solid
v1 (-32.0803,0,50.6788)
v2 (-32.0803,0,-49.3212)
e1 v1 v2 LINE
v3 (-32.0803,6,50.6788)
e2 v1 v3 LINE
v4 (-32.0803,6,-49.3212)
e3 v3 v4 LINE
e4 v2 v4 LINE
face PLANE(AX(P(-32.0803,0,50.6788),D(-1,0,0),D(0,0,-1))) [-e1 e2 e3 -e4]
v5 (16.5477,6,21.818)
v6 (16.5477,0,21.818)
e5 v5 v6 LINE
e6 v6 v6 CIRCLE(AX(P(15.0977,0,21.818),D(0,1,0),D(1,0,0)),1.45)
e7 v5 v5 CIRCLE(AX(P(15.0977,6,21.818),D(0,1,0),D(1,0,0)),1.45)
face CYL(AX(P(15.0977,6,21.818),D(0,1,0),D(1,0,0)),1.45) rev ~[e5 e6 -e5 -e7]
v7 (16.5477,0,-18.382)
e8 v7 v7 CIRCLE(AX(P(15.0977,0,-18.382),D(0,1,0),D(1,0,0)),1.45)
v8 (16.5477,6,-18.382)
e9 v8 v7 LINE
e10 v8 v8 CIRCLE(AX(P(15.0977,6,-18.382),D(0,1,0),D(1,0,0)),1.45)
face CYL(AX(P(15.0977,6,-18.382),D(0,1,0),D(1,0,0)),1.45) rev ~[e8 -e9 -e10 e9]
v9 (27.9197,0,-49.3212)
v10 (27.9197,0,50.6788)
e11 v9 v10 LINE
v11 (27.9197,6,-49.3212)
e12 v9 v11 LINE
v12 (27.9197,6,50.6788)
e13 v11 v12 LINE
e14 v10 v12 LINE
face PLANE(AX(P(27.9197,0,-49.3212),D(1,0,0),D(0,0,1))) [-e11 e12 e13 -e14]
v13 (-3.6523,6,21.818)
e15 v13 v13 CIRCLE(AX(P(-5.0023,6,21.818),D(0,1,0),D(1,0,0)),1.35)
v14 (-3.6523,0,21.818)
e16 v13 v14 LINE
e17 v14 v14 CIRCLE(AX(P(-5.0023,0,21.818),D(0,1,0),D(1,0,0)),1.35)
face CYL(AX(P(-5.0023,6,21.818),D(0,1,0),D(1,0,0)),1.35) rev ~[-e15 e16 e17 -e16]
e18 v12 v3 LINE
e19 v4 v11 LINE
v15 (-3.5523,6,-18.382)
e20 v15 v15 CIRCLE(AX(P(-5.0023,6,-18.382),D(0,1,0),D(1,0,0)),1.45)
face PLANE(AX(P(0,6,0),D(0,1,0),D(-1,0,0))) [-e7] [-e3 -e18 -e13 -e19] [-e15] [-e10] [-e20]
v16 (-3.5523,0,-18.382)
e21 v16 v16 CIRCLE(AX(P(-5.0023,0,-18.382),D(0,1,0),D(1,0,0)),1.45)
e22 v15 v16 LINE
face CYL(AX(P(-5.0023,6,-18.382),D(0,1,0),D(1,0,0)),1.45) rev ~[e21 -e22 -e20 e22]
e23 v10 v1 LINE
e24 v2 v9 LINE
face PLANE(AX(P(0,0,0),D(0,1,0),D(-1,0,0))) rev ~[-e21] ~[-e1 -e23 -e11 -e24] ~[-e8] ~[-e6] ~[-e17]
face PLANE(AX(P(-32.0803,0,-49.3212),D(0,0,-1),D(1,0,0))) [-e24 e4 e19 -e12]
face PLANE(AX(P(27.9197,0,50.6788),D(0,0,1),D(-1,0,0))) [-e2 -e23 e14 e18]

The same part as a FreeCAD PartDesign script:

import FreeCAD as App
import Part
import Sketcher


def add_polygon(sketch, points):
    """Adds a closed chain of lines whose ends are joined by coincident constraints."""
    first, n = sketch.GeometryCount, len(points)
    for a, b in zip(points, points[1:] + points[:1]):
        sketch.addGeometry(Part.LineSegment(App.Vector(*a, 0), App.Vector(*b, 0)), False)
    for i in range(n):
        sketch.addConstraint(Sketcher.Constraint("Coincident", first + i, 2, first + (i + 1) % n, 1))

doc = App.newDocument("Part")
params = doc.addObject("Spreadsheet::Sheet", "Params")
for row, (alias, value) in enumerate([
    ("sketch1_width", "60 mm"),
    ("sketch1_height", "100 mm"),
    ("pad1_length", "6 mm"),
    ("sketch2_diameter", "2.7 mm"),
    ("sketch2_diameter2", "2.9 mm"),
    ("pocket1_length", "6 mm"),
], start=1):
    params.set(f"A{row}", alias)
    params.set(f"B{row}", "=" + value)
    params.setAlias(f"B{row}", alias)

body = doc.addObject("PartDesign::Body", "Body")

sketch1 = body.newObject("Sketcher::SketchObject", "Sketch")
sketch1.AttachmentSupport = (doc.getObject("XZ_Plane"), [""])
sketch1.MapMode = "FlatFace"
add_polygon(sketch1, [(-32, 51), (28, 51), (28, -49), (-32, -49)])
sketch1.addConstraint([
    Sketcher.Constraint("Horizontal", 0),
    Sketcher.Constraint("Vertical", 1),
    Sketcher.Constraint("Horizontal", 2),
    Sketcher.Constraint("Vertical", 3),
    Sketcher.Constraint("DistanceX", 0, 1, 0, 2, 60.0),
    Sketcher.Constraint("DistanceY", 1, 2, 1, 1, 100.0),
    Sketcher.Constraint("DistanceX", -1, 1, 0, 2, 27.9197),
    Sketcher.Constraint("DistanceY", -1, 1, 0, 2, 50.6788),
])
sketch1.setExpression("Constraints[8]", "Params.sketch1_width")
sketch1.setExpression("Constraints[9]", "Params.sketch1_height")
pad1 = body.newObject("PartDesign::Pad", "Pad")
pad1.Profile = sketch1
pad1.setExpression("Length", "Params.pad1_length")
pad1.Reversed = True

sketch2 = body.newObject("Sketcher::SketchObject", "Sketch001")
sketch2.AttachmentSupport = (doc.getObject("XZ_Plane"), [""])
sketch2.MapMode = "FlatFace"
sketch2.AttachmentOffset = App.Placement(App.Vector(0, 0, -6), App.Rotation())
sketch2.addGeometry([
    Part.Circle(App.Vector(15.1, 21.8, 0), App.Vector(0, 0, 1), 1.4),
    Part.Circle(App.Vector(-5, -18.4, 0), App.Vector(0, 0, 1), 1.4),
    Part.Circle(App.Vector(15.1, -18.4, 0), App.Vector(0, 0, 1), 1.4),
    Part.Circle(App.Vector(-5, 21.8, 0), App.Vector(0, 0, 1), 1.4),
], False)
sketch2.addConstraint([
    Sketcher.Constraint("Equal", 0, 1),
    Sketcher.Constraint("Equal", 1, 2),
    Sketcher.Constraint("Horizontal", 1, 3, 2, 3),
    Sketcher.Constraint("Horizontal", 0, 3, 3, 3),
    Sketcher.Constraint("Vertical", 0, 3, 2, 3),
    Sketcher.Constraint("Vertical", 1, 3, 3, 3),
    Sketcher.Constraint("Diameter", 3, 2.7),
    Sketcher.Constraint("Diameter", 0, 2.9),
    Sketcher.Constraint("DistanceX", 1, 3, 0, 3, 20.1),
    Sketcher.Constraint("DistanceY", 1, 3, 0, 3, 40.2),
    Sketcher.Constraint("DistanceY", -1, 1, 0, 3, 21.818),
    Sketcher.Constraint("DistanceX", -1, 1, 0, 3, 15.0977),
])
sketch2.setExpression("Constraints[6]", "Params.sketch2_diameter")
sketch2.setExpression("Constraints[7]", "Params.sketch2_diameter2")
pocket1 = body.newObject("PartDesign::Pocket", "Pocket")
pocket1.Profile = sketch2
pocket1.setExpression("Length", "Params.pocket1_length")
pocket1.Reversed = True

doc.recompute()
